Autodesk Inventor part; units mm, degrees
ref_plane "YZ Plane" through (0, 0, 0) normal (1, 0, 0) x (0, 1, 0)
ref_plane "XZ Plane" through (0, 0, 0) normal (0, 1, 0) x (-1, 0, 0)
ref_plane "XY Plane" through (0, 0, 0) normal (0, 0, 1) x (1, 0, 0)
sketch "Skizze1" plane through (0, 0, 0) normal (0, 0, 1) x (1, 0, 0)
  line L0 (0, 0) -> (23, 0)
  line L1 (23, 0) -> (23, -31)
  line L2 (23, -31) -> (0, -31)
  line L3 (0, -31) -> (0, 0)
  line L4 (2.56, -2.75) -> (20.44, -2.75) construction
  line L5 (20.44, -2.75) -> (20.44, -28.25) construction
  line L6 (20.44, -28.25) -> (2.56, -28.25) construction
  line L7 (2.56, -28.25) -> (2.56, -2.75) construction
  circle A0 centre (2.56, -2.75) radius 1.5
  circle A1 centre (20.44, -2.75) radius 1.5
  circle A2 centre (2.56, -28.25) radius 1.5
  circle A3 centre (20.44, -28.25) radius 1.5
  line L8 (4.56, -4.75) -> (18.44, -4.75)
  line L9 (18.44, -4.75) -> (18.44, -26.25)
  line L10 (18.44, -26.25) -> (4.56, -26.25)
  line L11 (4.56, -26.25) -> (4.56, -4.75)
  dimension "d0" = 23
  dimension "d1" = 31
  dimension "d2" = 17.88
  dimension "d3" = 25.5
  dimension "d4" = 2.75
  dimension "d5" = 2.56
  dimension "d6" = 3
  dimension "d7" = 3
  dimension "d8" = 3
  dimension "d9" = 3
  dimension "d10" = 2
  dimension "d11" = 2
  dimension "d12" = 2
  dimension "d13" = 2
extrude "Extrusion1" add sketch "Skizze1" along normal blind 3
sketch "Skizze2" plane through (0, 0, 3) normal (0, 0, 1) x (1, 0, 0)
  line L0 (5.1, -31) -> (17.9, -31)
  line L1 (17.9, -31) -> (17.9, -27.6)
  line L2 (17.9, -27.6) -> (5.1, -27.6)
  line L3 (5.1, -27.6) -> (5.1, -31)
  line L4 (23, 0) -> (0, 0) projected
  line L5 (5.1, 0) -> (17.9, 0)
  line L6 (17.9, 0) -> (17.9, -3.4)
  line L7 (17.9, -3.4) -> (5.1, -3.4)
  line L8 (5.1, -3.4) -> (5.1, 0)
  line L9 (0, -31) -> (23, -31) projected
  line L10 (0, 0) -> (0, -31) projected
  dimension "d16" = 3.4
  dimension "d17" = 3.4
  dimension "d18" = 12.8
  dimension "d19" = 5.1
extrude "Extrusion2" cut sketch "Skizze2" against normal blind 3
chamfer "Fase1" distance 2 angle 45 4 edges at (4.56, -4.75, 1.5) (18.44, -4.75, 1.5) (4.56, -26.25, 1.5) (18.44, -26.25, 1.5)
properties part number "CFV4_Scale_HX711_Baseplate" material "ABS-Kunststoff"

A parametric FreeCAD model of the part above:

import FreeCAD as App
import Part
import Sketcher

V = App.Vector
Q = App.Units.Quantity


def edges_at(feature, points):
    """Names of the edges that pass closest to the given points."""
    edges = feature.Shape.Edges
    near = lambda p: min(range(len(edges)), key=lambda i: edges[i].distToShape(Part.Vertex(*p))[0])
    return sorted({f"Edge{near(p) + 1}" for p in points})


def add_polygon(sketch, points):
    """Adds a closed chain of lines whose ends are joined by coincident constraints."""
    first, n = sketch.GeometryCount, len(points)
    for a, b in zip(points, points[1:] + points[:1]):
        sketch.addGeometry(Part.LineSegment(App.Vector(*a, 0), App.Vector(*b, 0)), False)
    for i in range(n):
        sketch.addConstraint(Sketcher.Constraint("Coincident", first + i, 2, first + (i + 1) % n, 1))

doc = App.newDocument("Part")
params = doc.addObject("Spreadsheet::Sheet", "Params")
for row, (alias, value) in enumerate([
    ("sketch1_diameter", "3 mm"),
    ("sketch1_width", "23 mm"),
    ("sketch1_height", "31 mm"),
    ("pad1_length", "3 mm"),
    ("sketch2_width", "12.8 mm"),
    ("sketch2_height", "3.4 mm"),
    ("pocket1_length", "3 mm"),
    ("chamfer_size", "2 mm"),
], start=1):
    params.set(f"A{row}", alias)
    params.set(f"B{row}", "=" + value)
    params.setAlias(f"B{row}", alias)

body = doc.addObject("PartDesign::Body", "Body")

# Sketch on XY plane
sketch1 = body.newObject("Sketcher::SketchObject", "Sketch")
sketch1.AttachmentSupport = (doc.getObject("XY_Plane"), [""])
sketch1.MapMode = "FlatFace"
add_polygon(sketch1, [(23, 0), (0, 0), (0, -31), (23, -31)])  # lines 0-3
sketch1.addGeometry(Part.Circle(V(2.56, -28.25, 0), V(0, 0, 1), 1.5), False)  # 4
sketch1.addGeometry(Part.Circle(V(20.44, -28.25, 0), V(0, 0, 1), 1.5), False)  # 5
sketch1.addGeometry(Part.Circle(V(2.56, -2.75, 0), V(0, 0, 1), 1.5), False)  # 6
add_polygon(sketch1, [(4.56, -26.25), (4.56, -4.75), (18.44, -4.75), (18.44, -26.25)])  # lines 7-10
sketch1.addGeometry(Part.Circle(V(20.44, -2.75, 0), V(0, 0, 1), 1.5), False)  # 11
sketch1.addConstraint(Sketcher.Constraint("Horizontal", 0))
sketch1.addConstraint(Sketcher.Constraint("Vertical", 1))
sketch1.addConstraint(Sketcher.Constraint("Horizontal", 2))
sketch1.addConstraint(Sketcher.Constraint("Vertical", 3))
sketch1.addConstraint(Sketcher.Constraint("Vertical", 7))
sketch1.addConstraint(Sketcher.Constraint("Horizontal", 8))
sketch1.addConstraint(Sketcher.Constraint("Vertical", 9))
sketch1.addConstraint(Sketcher.Constraint("Horizontal", 10))
sketch1.addConstraint(Sketcher.Constraint("Coincident", 0, 2, -1, 1))
sketch1.addConstraint(Sketcher.Constraint("Equal", 4, 5))
sketch1.addConstraint(Sketcher.Constraint("Equal", 5, 6))
sketch1.addConstraint(Sketcher.Constraint("Equal", 6, 11))
sketch1.addConstraint(Sketcher.Constraint("Horizontal", 4, 3, 5, 3))
sketch1.addConstraint(Sketcher.Constraint("Horizontal", 6, 3, 11, 3))
sketch1.addConstraint(Sketcher.Constraint("Vertical", 4, 3, 6, 3))
sketch1.addConstraint(Sketcher.Constraint("Vertical", 5, 3, 11, 3))
sketch1.addConstraint(Sketcher.Constraint("Diameter", 4, Q("3 mm")))
sketch1.addConstraint(Sketcher.Constraint("DistanceX", 0, 2, 0, 1, Q("23 mm")))
sketch1.addConstraint(Sketcher.Constraint("DistanceY", 1, 2, 1, 1, Q("31 mm")))
sketch1.addConstraint(Sketcher.Constraint("DistanceX", 6, 3, 7, 2, Q("2 mm")))
sketch1.addConstraint(Sketcher.Constraint("DistanceY", 7, 2, 6, 3, Q("2 mm")))
sketch1.addConstraint(Sketcher.Constraint("DistanceX", 8, 2, 11, 3, Q("2 mm")))
sketch1.addConstraint(Sketcher.Constraint("DistanceY", 5, 3, 9, 2, Q("2 mm")))
sketch1.addConstraint(Sketcher.Constraint("DistanceY", 4, 3, 6, 3, Q("25.5 mm")))
sketch1.addConstraint(Sketcher.Constraint("DistanceX", -1, 1, 4, 3, Q("2.56 mm")))
sketch1.addConstraint(Sketcher.Constraint("DistanceY", 6, 3, -1, 1, Q("2.75 mm")))
sketch1.addConstraint(Sketcher.Constraint("DistanceX", 4, 3, 5, 3, Q("17.88 mm")))
sketch1.setExpression("Constraints[24]", "Params.sketch1_diameter")
sketch1.setExpression("Constraints[25]", "Params.sketch1_width")
sketch1.setExpression("Constraints[26]", "Params.sketch1_height")
pad1 = body.newObject("PartDesign::Pad", "Pad")
pad1.Profile = sketch1
pad1.setExpression("Length", "Params.pad1_length")

# Sketch on XY plane
sketch2 = body.newObject("Sketcher::SketchObject", "Sketch001")
sketch2.AttachmentSupport = (doc.getObject("XY_Plane"), [""])
sketch2.MapMode = "FlatFace"
sketch2.AttachmentOffset = App.Placement(V(0, 0, 3), App.Rotation())
add_polygon(sketch2, [(5.1, -27.6), (5.1, -31), (17.9, -31), (17.9, -27.6)])  # lines 0-3
add_polygon(sketch2, [(17.9, 0), (5.1, 0), (5.1, -3.4), (17.9, -3.4)])  # lines 4-7
sketch2.addConstraint(Sketcher.Constraint("Vertical", 0))
sketch2.addConstraint(Sketcher.Constraint("Horizontal", 1))
sketch2.addConstraint(Sketcher.Constraint("Vertical", 2))
sketch2.addConstraint(Sketcher.Constraint("Horizontal", 3))
sketch2.addConstraint(Sketcher.Constraint("Horizontal", 4))
sketch2.addConstraint(Sketcher.Constraint("Vertical", 5))
sketch2.addConstraint(Sketcher.Constraint("Horizontal", 6))
sketch2.addConstraint(Sketcher.Constraint("Vertical", 7))
sketch2.addConstraint(Sketcher.Constraint("PointOnObject", 4, 2, -1))
sketch2.addConstraint(Sketcher.Constraint("Vertical", 3, 2, 4, 2))
sketch2.addConstraint(Sketcher.Constraint("Vertical", 2, 2, 6, 2))
sketch2.addConstraint(Sketcher.Constraint("Equal", 2, 5))
sketch2.addConstraint(Sketcher.Constraint("DistanceX", 1, 1, 1, 2, Q("12.8 mm")))
sketch2.addConstraint(Sketcher.Constraint("DistanceY", 0, 2, 0, 1, Q("3.4 mm")))
sketch2.addConstraint(Sketcher.Constraint("DistanceX", -1, 1, 0, 2, Q("5.1 mm")))
sketch2.addConstraint(Sketcher.Constraint("DistanceY", 0, 2, -1, 1, Q("31 mm")))
sketch2.setExpression("Constraints[20]", "Params.sketch2_width")
sketch2.setExpression("Constraints[21]", "Params.sketch2_height")
pocket1 = body.newObject("PartDesign::Pocket", "Pocket")
pocket1.Profile = sketch2
pocket1.setExpression("Length", "Params.pocket1_length")
doc.recompute()

chamfer = body.newObject("PartDesign::Chamfer", "Chamfer")
chamfer.Base = (pocket1, edges_at(pocket1, [
    (4.56, -4.75, 1.5),
    (18.44, -4.75, 1.5),
    (4.56, -26.25, 1.5),
    (18.44, -26.25, 1.5),
]))
chamfer.setExpression("Size", "Params.chamfer_size")

doc.recompute()
